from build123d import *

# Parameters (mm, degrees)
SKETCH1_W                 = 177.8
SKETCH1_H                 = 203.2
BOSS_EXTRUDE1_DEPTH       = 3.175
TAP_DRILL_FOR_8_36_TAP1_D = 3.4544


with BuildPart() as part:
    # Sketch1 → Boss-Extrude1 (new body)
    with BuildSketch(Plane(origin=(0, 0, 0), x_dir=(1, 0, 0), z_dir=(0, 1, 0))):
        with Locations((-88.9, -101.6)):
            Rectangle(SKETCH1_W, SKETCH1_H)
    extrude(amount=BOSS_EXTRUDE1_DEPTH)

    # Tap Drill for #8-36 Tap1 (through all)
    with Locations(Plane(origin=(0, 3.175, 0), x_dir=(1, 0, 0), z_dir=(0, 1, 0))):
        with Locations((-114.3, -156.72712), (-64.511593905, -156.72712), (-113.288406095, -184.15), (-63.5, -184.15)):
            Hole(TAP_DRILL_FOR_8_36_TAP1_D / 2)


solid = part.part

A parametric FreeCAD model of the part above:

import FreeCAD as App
import Part
import Sketcher
from FreeCAD import Vector
Q = App.Units.Quantity

doc = App.newDocument("Part")
body = doc.addObject("PartDesign::Body", "Body")

sketch1 = body.newObject("Sketcher::SketchObject", "Sketch")
sketch1.AttachmentSupport = (doc.getObject("XZ_Plane"), [""])
sketch1.MapMode = "FlatFace"
sketch1.addGeometry(Part.LineSegment(Vector(-178, 0, 0), Vector(-178, 203, 0)), False)
sketch1.addGeometry(Part.LineSegment(Vector(-178, 203, 0), Vector(0, 203, 0)), False)
sketch1.addGeometry(Part.LineSegment(Vector(0, 203, 0), Vector(0, 0, 0)), False)
sketch1.addGeometry(Part.LineSegment(Vector(0, 0, 0), Vector(-178, 0, 0)), False)
sketch1.addConstraint(Sketcher.Constraint("Coincident", 0, 2, 1, 1))
sketch1.addConstraint(Sketcher.Constraint("Coincident", 1, 2, 2, 1))
sketch1.addConstraint(Sketcher.Constraint("Coincident", 2, 2, 3, 1))
sketch1.addConstraint(Sketcher.Constraint("Coincident", 3, 2, 0, 1))
sketch1.addConstraint(Sketcher.Constraint("Vertical", 0))
sketch1.addConstraint(Sketcher.Constraint("Horizontal", 1))
sketch1.addConstraint(Sketcher.Constraint("Vertical", 2))
sketch1.addConstraint(Sketcher.Constraint("Horizontal", 3))
sketch1.addConstraint(Sketcher.Constraint("Coincident", 2, 2, -1, 1))
sketch1.addConstraint(Sketcher.Constraint("DistanceX", 1, 1, 1, 2, Q("7 in")))
sketch1.addConstraint(Sketcher.Constraint("DistanceY", 0, 1, 0, 2, Q("8 in")))
pad1 = body.newObject("PartDesign::Pad", "Pad")
pad1.Profile = sketch1
pad1.Length = Q("0.125 in")
pad1.Reversed = True

sketch2 = body.newObject("Sketcher::SketchObject", "Sketch001")
sketch2.AttachmentSupport = (doc.getObject("XZ_Plane"), [""])
sketch2.MapMode = "FlatFace"
sketch2.AttachmentOffset = App.Placement(Vector(0, 0, -0.125 * 25.4), App.Rotation())
sketch2.addGeometry(Part.Circle(Vector(-114.3, 156.7, 0), Vector(0, 0, 1), 1.7), False)
sketch2.addGeometry(Part.Circle(Vector(-64.5, 156.7, 0), Vector(0, 0, 1), 1.7), False)
sketch2.addGeometry(Part.Circle(Vector(-113.3, 184.2, 0), Vector(0, 0, 1), 1.7), False)
sketch2.addGeometry(Part.Circle(Vector(-63.5, 184.2, 0), Vector(0, 0, 1), 1.7), False)
sketch2.addConstraint(Sketcher.Constraint("Equal", 0, 1))
sketch2.addConstraint(Sketcher.Constraint("Equal", 1, 2))
sketch2.addConstraint(Sketcher.Constraint("Equal", 2, 3))
sketch2.addConstraint(Sketcher.Constraint("Horizontal", 0, 3, 1, 3))
sketch2.addConstraint(Sketcher.Constraint("Horizontal", 2, 3, 3, 3))
sketch2.addConstraint(Sketcher.Constraint("Diameter", 0, Q("0.136 in")))
sketch2.addConstraint(Sketcher.Constraint("DistanceX", 0, 3, 3, 3, Q("2 in")))
sketch2.addConstraint(Sketcher.Constraint("DistanceX", 0, 3, -1, 1, Q("4.5 in")))
sketch2.addConstraint(Sketcher.Constraint("DistanceY", -1, 1, 2, 3, Q("7.25 in")))
sketch2.addConstraint(Sketcher.Constraint("DistanceY", -1, 1, 0, 3, 156.72712))
sketch2.addConstraint(Sketcher.Constraint("DistanceX", 1, 3, -1, 1, 64.511594))
sketch2.addConstraint(Sketcher.Constraint("DistanceX", 2, 3, -1, 1, 113.288406))
doc.recompute()
hole = body.newObject("PartDesign::Hole", "Hole")
hole.Profile = sketch2
hole.ThreadType = "None"
hole.Diameter = Q("0.136 in")
hole.DepthType = "ThroughAll"
hole.Reversed = True

doc.recompute()
